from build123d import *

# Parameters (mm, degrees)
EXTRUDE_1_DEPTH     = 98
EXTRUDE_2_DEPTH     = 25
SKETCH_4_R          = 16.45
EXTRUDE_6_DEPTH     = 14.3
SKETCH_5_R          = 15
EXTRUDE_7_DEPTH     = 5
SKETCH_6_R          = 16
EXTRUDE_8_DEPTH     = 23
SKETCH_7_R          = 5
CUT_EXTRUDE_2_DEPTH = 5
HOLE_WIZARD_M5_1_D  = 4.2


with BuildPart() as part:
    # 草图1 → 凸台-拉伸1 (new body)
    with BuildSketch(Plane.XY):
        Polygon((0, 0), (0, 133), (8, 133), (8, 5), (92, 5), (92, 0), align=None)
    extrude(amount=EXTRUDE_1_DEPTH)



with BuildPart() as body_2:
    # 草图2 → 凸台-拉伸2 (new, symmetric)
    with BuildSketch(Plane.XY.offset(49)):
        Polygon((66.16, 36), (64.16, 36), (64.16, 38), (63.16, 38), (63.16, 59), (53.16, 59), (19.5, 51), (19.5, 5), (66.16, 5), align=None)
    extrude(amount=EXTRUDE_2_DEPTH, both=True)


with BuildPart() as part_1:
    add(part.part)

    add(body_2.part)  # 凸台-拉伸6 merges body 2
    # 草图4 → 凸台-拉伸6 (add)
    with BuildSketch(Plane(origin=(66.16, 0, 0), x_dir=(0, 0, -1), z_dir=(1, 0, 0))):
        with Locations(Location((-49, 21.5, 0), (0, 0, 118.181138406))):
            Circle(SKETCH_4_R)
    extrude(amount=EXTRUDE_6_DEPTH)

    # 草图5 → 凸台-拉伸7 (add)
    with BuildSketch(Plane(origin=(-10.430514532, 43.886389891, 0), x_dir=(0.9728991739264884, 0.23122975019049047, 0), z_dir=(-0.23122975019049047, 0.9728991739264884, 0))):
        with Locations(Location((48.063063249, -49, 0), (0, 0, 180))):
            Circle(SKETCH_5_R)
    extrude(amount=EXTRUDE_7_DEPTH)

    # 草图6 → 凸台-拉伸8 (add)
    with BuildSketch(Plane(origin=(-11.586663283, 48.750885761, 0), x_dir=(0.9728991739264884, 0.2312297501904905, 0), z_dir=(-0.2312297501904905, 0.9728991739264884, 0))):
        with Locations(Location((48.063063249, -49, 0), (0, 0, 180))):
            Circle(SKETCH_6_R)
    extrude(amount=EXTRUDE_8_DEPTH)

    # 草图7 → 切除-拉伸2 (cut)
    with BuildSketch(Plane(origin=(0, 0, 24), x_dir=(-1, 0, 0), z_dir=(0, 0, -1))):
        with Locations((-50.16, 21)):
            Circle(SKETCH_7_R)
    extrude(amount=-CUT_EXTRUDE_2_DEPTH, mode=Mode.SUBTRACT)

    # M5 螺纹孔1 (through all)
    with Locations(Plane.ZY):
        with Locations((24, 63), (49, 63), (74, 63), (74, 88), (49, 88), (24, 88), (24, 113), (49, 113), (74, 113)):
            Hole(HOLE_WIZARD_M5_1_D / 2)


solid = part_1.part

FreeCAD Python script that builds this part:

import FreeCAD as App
import Part
import Sketcher
from FreeCAD import Vector
Q = App.Units.Quantity


def add_polygon(sketch, points):
    """Adds a closed chain of lines whose ends are joined by coincident constraints."""
    first, n = sketch.GeometryCount, len(points)
    for a, b in zip(points, points[1:] + points[:1]):
        sketch.addGeometry(Part.LineSegment(App.Vector(*a, 0), App.Vector(*b, 0)), False)
    for i in range(n):
        sketch.addConstraint(Sketcher.Constraint("Coincident", first + i, 2, first + (i + 1) % n, 1))

doc = App.newDocument("Part")
body = doc.addObject("PartDesign::Body", "Body")

sketch1 = body.newObject("Sketcher::SketchObject", "Sketch")
sketch1.AttachmentSupport = (doc.getObject("XY_Plane"), [""])
sketch1.MapMode = "FlatFace"
add_polygon(sketch1, [(0, 133), (0, 0), (92, 0), (92, 5), (8, 5), (8, 133)])
sketch1.addConstraint([
    Sketcher.Constraint("Vertical", 0),
    Sketcher.Constraint("Horizontal", 1),
    Sketcher.Constraint("Vertical", 2),
    Sketcher.Constraint("Horizontal", 3),
    Sketcher.Constraint("Vertical", 4),
    Sketcher.Constraint("Horizontal", 5),
    Sketcher.Constraint("Coincident", 0, 2, -1, 1),
    Sketcher.Constraint("DistanceX", 1, 1, 1, 2, Q("92 mm")),
    Sketcher.Constraint("DistanceX", 3, 2, 3, 1, Q("84 mm")),
    Sketcher.Constraint("DistanceY", 0, 2, 0, 1, Q("133 mm")),
    Sketcher.Constraint("DistanceY", 2, 1, 2, 2, Q("5 mm")),
])
pad1 = body.newObject("PartDesign::Pad", "Pad")
pad1.Profile = sketch1
pad1.Length = 98
body2 = doc.addObject("PartDesign::Body", "Body001")

sketch2 = body2.newObject("Sketcher::SketchObject", "Sketch001")
sketch2.AttachmentSupport = (doc.getObject("XY_Plane001"), [""])
sketch2.MapMode = "FlatFace"
sketch2.AttachmentOffset = App.Placement(Vector(0, 0, 49), App.Rotation())
add_polygon(sketch2, [(66.2, 36), (64.2, 36), (64.2, 38), (63.2, 38), (63.2, 59), (53.2, 59), (19.5, 51), (19.5, 5), (66.2, 5)])
sketch2.addConstraint([
    Sketcher.Constraint("Horizontal", 0),
    Sketcher.Constraint("Vertical", 1),
    Sketcher.Constraint("Horizontal", 2),
    Sketcher.Constraint("Vertical", 3),
    Sketcher.Constraint("Horizontal", 4),
    Sketcher.Constraint("Vertical", 6),
    Sketcher.Constraint("Horizontal", 7),
    Sketcher.Constraint("Vertical", 8),
    Sketcher.Constraint("Equal", 0, 1),
    Sketcher.Constraint("DistanceX", 0, 2, 0, 1, Q("2 mm")),
    Sketcher.Constraint("DistanceX", 2, 2, 2, 1, Q("1 mm")),
    Sketcher.Constraint("DistanceX", 4, 2, 4, 1, Q("10 mm")),
    Sketcher.Constraint("DistanceY", 3, 1, 3, 2, Q("21 mm")),
    Sketcher.Constraint("DistanceY", 6, 2, 6, 1, Q("46 mm")),
    Sketcher.Constraint("DistanceY", 8, 1, 8, 2, Q("31 mm")),
    Sketcher.Constraint("DistanceY", -1, 1, 0, 2, Q("36 mm")),
    Sketcher.Constraint("DistanceX", 7, 1, 7, 2, Q("46.66 mm")),
    Sketcher.Constraint("DistanceX", -1, 1, 5, 2, Q("19.5 mm")),
])
pad2 = body2.newObject("PartDesign::Pad", "Pad001")
pad2.Profile = sketch2
pad2.Length = 50
pad2.Midplane = True
doc.recompute()

boolean = body.newObject("PartDesign::Boolean", "Boolean")
boolean.Type = "Fuse"
boolean.addObjects([body2])

sketch3 = body.newObject("Sketcher::SketchObject", "Sketch002")
sketch3.AttachmentSupport = (doc.getObject("YZ_Plane"), [""])
sketch3.MapMode = "FlatFace"
sketch3.AttachmentOffset = App.Placement(Vector(0, 0, 66.16), App.Rotation())
sketch3.addGeometry(Part.Circle(Vector(22, 49, 0), Vector(0, 0, 1), 16), False)
sketch3.addConstraint([
    Sketcher.Constraint("Diameter", 0, Q("32.9 mm")),
    Sketcher.Constraint("DistanceY", -1, 1, 0, 3, Q("49 mm")),
    Sketcher.Constraint("DistanceX", -1, 1, 0, 3, Q("21.5 mm")),
])
pad3 = body.newObject("PartDesign::Pad", "Pad002")
pad3.Profile = sketch3
pad3.Length = 14.3

sketch4 = body.newObject("Sketcher::SketchObject", "Sketch003")
sketch4.Placement = App.Placement(Vector(-10.430515, 43.88639, 0), App.Rotation(Vector(0.972899174, 0.23122975, 0), Vector(0, 0, -1), Vector(-0.23122975, 0.972899174, 0), "ZXY"))
sketch4.addGeometry(Part.Circle(Vector(48, -49, 0), Vector(0, 0, 1), 15), False)
sketch4.addConstraint([
    Sketcher.Constraint("Diameter", 0, Q("30 mm")),
    Sketcher.Constraint("DistanceY", 0, 3, -1, 1, Q("49 mm")),
    Sketcher.Constraint("DistanceX", -1, 1, 0, 3, Q("48.063063 mm")),
])
pad4 = body.newObject("PartDesign::Pad", "Pad003")
pad4.Profile = sketch4
pad4.Length = 5

sketch5 = body.newObject("Sketcher::SketchObject", "Sketch004")
sketch5.Placement = App.Placement(Vector(-11.586663, 48.750886, 0), App.Rotation(Vector(0.972899174, 0.23122975, 0), Vector(0, 0, -1), Vector(-0.23122975, 0.972899174, 0), "ZXY"))
sketch5.addGeometry(Part.Circle(Vector(48, -49, 0), Vector(0, 0, 1), 16), False)
sketch5.addConstraint([
    Sketcher.Constraint("Diameter", 0, Q("32 mm")),
    Sketcher.Constraint("DistanceY", 0, 3, -1, 1, Q("49 mm")),
    Sketcher.Constraint("DistanceX", -1, 1, 0, 3, Q("48.063063 mm")),
])
pad5 = body.newObject("PartDesign::Pad", "Pad004")
pad5.Profile = sketch5
pad5.Length = 23

sketch6 = body.newObject("Sketcher::SketchObject", "Sketch005")
sketch6.AttachmentSupport = (doc.getObject("XY_Plane"), [""])
sketch6.MapMode = "FlatFace"
sketch6.AttachmentOffset = App.Placement(Vector(0, 0, 24), App.Rotation())
sketch6.addGeometry(Part.Circle(Vector(50, 21, 0), Vector(0, 0, 1), 5), False)
sketch6.addConstraint([
    Sketcher.Constraint("Diameter", 0, Q("10 mm")),
    Sketcher.Constraint("DistanceY", -1, 1, 0, 3, Q("21 mm")),
    Sketcher.Constraint("DistanceX", -1, 1, 0, 3, Q("50.16 mm")),
])
pocket1 = body.newObject("PartDesign::Pocket", "Pocket")
pocket1.Profile = sketch6
pocket1.Length = 5
pocket1.Reversed = True

sketch7 = body.newObject("Sketcher::SketchObject", "Sketch006")
sketch7.AttachmentSupport = (doc.getObject("YZ_Plane"), [""])
sketch7.MapMode = "FlatFace"
sketch7.addGeometry([
    Part.Circle(Vector(63, 24, 0), Vector(0, 0, 1), 2.1),
    Part.Circle(Vector(63, 49, 0), Vector(0, 0, 1), 2.1),
    Part.Circle(Vector(63, 74, 0), Vector(0, 0, 1), 2.1),
    Part.Circle(Vector(88, 74, 0), Vector(0, 0, 1), 2.1),
    Part.Circle(Vector(88, 49, 0), Vector(0, 0, 1), 2.1),
    Part.Circle(Vector(88, 24, 0), Vector(0, 0, 1), 2.1),
    Part.Circle(Vector(113, 24, 0), Vector(0, 0, 1), 2.1),
    Part.Circle(Vector(113, 49, 0), Vector(0, 0, 1), 2.1),
    Part.Circle(Vector(113, 74, 0), Vector(0, 0, 1), 2.1),
], False)
sketch7.addConstraint([
    Sketcher.Constraint("Equal", 0, 1),
    Sketcher.Constraint("Equal", 1, 2),
    Sketcher.Constraint("Equal", 2, 3),
    Sketcher.Constraint("Equal", 3, 4),
    Sketcher.Constraint("Equal", 4, 5),
    Sketcher.Constraint("Equal", 5, 6),
    Sketcher.Constraint("Equal", 6, 7),
    Sketcher.Constraint("Equal", 7, 8),
    Sketcher.Constraint("Horizontal", 2, 3, 3, 3),
    Sketcher.Constraint("Horizontal", 1, 3, 4, 3),
    Sketcher.Constraint("Horizontal", 0, 3, 5, 3),
    Sketcher.Constraint("Horizontal", 5, 3, 6, 3),
    Sketcher.Constraint("Horizontal", 4, 3, 7, 3),
    Sketcher.Constraint("Horizontal", 3, 3, 8, 3),
    Sketcher.Constraint("Vertical", 0, 3, 1, 3),
    Sketcher.Constraint("Vertical", 1, 3, 2, 3),
    Sketcher.Constraint("Vertical", 3, 3, 4, 3),
    Sketcher.Constraint("Vertical", 4, 3, 5, 3),
    Sketcher.Constraint("Vertical", 6, 3, 7, 3),
    Sketcher.Constraint("Vertical", 7, 3, 8, 3),
    Sketcher.Constraint("Diameter", 0, Q("4.2 mm")),
    Sketcher.Constraint("DistanceX", -1, 1, 0, 3, Q("63 mm")),
    Sketcher.Constraint("DistanceY", -1, 1, 0, 3, Q("24 mm")),
    Sketcher.Constraint("DistanceY", -1, 1, 1, 3, Q("49 mm")),
    Sketcher.Constraint("DistanceY", -1, 1, 2, 3, Q("74 mm")),
    Sketcher.Constraint("DistanceX", -1, 1, 3, 3, Q("88 mm")),
    Sketcher.Constraint("DistanceX", -1, 1, 6, 3, Q("113 mm")),
])
doc.recompute()
hole = body.newObject("PartDesign::Hole", "Hole")
hole.Profile = sketch7
hole.ThreadType = "None"
hole.Diameter = 4.2
hole.DepthType = "ThroughAll"
hole.Reversed = True

doc.recompute()
